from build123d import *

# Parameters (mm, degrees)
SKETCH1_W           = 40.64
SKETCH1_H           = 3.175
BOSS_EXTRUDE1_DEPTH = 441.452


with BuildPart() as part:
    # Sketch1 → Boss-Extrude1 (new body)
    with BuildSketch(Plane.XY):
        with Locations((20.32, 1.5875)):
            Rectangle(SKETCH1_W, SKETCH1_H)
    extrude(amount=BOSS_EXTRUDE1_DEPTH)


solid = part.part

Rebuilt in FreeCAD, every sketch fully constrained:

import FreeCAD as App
import Part
import Sketcher

V = App.Vector
Q = App.Units.Quantity


def add_polygon(sketch, points):
    """Adds a closed chain of lines whose ends are joined by coincident constraints."""
    first, n = sketch.GeometryCount, len(points)
    for a, b in zip(points, points[1:] + points[:1]):
        sketch.addGeometry(Part.LineSegment(App.Vector(*a, 0), App.Vector(*b, 0)), False)
    for i in range(n):
        sketch.addConstraint(Sketcher.Constraint("Coincident", first + i, 2, first + (i + 1) % n, 1))

doc = App.newDocument("Part")
body = doc.addObject("PartDesign::Body", "Body")

# Sketch on XY plane
sketch1 = doc.addObject("Sketcher::SketchObject", "Sketch")
body.addObject(sketch1)
sketch1.AttachmentSupport = (doc.XY_Plane, [""])
sketch1.MapMode = "FlatFace"
add_polygon(sketch1, [(0, 3.2), (0, 0), (40.6, 0), (40.6, 3.2)])  # lines 0-3
sketch1.addConstraint([
    Sketcher.Constraint("Vertical", 0),
    Sketcher.Constraint("Horizontal", 1),
    Sketcher.Constraint("Vertical", 2),
    Sketcher.Constraint("Horizontal", 3),
    Sketcher.Constraint("Coincident", 0, 2, -1, 1),
    Sketcher.Constraint("DistanceX", 1, 1, 1, 2, Q("1.6 in")),
    Sketcher.Constraint("DistanceY", 0, 2, 0, 1, Q("0.125 in")),
])
pad1 = doc.addObject("PartDesign::Pad", "Pad")
body.addObject(pad1)
pad1.Profile = sketch1
pad1.Length = Q("17.38 in")

doc.recompute()
